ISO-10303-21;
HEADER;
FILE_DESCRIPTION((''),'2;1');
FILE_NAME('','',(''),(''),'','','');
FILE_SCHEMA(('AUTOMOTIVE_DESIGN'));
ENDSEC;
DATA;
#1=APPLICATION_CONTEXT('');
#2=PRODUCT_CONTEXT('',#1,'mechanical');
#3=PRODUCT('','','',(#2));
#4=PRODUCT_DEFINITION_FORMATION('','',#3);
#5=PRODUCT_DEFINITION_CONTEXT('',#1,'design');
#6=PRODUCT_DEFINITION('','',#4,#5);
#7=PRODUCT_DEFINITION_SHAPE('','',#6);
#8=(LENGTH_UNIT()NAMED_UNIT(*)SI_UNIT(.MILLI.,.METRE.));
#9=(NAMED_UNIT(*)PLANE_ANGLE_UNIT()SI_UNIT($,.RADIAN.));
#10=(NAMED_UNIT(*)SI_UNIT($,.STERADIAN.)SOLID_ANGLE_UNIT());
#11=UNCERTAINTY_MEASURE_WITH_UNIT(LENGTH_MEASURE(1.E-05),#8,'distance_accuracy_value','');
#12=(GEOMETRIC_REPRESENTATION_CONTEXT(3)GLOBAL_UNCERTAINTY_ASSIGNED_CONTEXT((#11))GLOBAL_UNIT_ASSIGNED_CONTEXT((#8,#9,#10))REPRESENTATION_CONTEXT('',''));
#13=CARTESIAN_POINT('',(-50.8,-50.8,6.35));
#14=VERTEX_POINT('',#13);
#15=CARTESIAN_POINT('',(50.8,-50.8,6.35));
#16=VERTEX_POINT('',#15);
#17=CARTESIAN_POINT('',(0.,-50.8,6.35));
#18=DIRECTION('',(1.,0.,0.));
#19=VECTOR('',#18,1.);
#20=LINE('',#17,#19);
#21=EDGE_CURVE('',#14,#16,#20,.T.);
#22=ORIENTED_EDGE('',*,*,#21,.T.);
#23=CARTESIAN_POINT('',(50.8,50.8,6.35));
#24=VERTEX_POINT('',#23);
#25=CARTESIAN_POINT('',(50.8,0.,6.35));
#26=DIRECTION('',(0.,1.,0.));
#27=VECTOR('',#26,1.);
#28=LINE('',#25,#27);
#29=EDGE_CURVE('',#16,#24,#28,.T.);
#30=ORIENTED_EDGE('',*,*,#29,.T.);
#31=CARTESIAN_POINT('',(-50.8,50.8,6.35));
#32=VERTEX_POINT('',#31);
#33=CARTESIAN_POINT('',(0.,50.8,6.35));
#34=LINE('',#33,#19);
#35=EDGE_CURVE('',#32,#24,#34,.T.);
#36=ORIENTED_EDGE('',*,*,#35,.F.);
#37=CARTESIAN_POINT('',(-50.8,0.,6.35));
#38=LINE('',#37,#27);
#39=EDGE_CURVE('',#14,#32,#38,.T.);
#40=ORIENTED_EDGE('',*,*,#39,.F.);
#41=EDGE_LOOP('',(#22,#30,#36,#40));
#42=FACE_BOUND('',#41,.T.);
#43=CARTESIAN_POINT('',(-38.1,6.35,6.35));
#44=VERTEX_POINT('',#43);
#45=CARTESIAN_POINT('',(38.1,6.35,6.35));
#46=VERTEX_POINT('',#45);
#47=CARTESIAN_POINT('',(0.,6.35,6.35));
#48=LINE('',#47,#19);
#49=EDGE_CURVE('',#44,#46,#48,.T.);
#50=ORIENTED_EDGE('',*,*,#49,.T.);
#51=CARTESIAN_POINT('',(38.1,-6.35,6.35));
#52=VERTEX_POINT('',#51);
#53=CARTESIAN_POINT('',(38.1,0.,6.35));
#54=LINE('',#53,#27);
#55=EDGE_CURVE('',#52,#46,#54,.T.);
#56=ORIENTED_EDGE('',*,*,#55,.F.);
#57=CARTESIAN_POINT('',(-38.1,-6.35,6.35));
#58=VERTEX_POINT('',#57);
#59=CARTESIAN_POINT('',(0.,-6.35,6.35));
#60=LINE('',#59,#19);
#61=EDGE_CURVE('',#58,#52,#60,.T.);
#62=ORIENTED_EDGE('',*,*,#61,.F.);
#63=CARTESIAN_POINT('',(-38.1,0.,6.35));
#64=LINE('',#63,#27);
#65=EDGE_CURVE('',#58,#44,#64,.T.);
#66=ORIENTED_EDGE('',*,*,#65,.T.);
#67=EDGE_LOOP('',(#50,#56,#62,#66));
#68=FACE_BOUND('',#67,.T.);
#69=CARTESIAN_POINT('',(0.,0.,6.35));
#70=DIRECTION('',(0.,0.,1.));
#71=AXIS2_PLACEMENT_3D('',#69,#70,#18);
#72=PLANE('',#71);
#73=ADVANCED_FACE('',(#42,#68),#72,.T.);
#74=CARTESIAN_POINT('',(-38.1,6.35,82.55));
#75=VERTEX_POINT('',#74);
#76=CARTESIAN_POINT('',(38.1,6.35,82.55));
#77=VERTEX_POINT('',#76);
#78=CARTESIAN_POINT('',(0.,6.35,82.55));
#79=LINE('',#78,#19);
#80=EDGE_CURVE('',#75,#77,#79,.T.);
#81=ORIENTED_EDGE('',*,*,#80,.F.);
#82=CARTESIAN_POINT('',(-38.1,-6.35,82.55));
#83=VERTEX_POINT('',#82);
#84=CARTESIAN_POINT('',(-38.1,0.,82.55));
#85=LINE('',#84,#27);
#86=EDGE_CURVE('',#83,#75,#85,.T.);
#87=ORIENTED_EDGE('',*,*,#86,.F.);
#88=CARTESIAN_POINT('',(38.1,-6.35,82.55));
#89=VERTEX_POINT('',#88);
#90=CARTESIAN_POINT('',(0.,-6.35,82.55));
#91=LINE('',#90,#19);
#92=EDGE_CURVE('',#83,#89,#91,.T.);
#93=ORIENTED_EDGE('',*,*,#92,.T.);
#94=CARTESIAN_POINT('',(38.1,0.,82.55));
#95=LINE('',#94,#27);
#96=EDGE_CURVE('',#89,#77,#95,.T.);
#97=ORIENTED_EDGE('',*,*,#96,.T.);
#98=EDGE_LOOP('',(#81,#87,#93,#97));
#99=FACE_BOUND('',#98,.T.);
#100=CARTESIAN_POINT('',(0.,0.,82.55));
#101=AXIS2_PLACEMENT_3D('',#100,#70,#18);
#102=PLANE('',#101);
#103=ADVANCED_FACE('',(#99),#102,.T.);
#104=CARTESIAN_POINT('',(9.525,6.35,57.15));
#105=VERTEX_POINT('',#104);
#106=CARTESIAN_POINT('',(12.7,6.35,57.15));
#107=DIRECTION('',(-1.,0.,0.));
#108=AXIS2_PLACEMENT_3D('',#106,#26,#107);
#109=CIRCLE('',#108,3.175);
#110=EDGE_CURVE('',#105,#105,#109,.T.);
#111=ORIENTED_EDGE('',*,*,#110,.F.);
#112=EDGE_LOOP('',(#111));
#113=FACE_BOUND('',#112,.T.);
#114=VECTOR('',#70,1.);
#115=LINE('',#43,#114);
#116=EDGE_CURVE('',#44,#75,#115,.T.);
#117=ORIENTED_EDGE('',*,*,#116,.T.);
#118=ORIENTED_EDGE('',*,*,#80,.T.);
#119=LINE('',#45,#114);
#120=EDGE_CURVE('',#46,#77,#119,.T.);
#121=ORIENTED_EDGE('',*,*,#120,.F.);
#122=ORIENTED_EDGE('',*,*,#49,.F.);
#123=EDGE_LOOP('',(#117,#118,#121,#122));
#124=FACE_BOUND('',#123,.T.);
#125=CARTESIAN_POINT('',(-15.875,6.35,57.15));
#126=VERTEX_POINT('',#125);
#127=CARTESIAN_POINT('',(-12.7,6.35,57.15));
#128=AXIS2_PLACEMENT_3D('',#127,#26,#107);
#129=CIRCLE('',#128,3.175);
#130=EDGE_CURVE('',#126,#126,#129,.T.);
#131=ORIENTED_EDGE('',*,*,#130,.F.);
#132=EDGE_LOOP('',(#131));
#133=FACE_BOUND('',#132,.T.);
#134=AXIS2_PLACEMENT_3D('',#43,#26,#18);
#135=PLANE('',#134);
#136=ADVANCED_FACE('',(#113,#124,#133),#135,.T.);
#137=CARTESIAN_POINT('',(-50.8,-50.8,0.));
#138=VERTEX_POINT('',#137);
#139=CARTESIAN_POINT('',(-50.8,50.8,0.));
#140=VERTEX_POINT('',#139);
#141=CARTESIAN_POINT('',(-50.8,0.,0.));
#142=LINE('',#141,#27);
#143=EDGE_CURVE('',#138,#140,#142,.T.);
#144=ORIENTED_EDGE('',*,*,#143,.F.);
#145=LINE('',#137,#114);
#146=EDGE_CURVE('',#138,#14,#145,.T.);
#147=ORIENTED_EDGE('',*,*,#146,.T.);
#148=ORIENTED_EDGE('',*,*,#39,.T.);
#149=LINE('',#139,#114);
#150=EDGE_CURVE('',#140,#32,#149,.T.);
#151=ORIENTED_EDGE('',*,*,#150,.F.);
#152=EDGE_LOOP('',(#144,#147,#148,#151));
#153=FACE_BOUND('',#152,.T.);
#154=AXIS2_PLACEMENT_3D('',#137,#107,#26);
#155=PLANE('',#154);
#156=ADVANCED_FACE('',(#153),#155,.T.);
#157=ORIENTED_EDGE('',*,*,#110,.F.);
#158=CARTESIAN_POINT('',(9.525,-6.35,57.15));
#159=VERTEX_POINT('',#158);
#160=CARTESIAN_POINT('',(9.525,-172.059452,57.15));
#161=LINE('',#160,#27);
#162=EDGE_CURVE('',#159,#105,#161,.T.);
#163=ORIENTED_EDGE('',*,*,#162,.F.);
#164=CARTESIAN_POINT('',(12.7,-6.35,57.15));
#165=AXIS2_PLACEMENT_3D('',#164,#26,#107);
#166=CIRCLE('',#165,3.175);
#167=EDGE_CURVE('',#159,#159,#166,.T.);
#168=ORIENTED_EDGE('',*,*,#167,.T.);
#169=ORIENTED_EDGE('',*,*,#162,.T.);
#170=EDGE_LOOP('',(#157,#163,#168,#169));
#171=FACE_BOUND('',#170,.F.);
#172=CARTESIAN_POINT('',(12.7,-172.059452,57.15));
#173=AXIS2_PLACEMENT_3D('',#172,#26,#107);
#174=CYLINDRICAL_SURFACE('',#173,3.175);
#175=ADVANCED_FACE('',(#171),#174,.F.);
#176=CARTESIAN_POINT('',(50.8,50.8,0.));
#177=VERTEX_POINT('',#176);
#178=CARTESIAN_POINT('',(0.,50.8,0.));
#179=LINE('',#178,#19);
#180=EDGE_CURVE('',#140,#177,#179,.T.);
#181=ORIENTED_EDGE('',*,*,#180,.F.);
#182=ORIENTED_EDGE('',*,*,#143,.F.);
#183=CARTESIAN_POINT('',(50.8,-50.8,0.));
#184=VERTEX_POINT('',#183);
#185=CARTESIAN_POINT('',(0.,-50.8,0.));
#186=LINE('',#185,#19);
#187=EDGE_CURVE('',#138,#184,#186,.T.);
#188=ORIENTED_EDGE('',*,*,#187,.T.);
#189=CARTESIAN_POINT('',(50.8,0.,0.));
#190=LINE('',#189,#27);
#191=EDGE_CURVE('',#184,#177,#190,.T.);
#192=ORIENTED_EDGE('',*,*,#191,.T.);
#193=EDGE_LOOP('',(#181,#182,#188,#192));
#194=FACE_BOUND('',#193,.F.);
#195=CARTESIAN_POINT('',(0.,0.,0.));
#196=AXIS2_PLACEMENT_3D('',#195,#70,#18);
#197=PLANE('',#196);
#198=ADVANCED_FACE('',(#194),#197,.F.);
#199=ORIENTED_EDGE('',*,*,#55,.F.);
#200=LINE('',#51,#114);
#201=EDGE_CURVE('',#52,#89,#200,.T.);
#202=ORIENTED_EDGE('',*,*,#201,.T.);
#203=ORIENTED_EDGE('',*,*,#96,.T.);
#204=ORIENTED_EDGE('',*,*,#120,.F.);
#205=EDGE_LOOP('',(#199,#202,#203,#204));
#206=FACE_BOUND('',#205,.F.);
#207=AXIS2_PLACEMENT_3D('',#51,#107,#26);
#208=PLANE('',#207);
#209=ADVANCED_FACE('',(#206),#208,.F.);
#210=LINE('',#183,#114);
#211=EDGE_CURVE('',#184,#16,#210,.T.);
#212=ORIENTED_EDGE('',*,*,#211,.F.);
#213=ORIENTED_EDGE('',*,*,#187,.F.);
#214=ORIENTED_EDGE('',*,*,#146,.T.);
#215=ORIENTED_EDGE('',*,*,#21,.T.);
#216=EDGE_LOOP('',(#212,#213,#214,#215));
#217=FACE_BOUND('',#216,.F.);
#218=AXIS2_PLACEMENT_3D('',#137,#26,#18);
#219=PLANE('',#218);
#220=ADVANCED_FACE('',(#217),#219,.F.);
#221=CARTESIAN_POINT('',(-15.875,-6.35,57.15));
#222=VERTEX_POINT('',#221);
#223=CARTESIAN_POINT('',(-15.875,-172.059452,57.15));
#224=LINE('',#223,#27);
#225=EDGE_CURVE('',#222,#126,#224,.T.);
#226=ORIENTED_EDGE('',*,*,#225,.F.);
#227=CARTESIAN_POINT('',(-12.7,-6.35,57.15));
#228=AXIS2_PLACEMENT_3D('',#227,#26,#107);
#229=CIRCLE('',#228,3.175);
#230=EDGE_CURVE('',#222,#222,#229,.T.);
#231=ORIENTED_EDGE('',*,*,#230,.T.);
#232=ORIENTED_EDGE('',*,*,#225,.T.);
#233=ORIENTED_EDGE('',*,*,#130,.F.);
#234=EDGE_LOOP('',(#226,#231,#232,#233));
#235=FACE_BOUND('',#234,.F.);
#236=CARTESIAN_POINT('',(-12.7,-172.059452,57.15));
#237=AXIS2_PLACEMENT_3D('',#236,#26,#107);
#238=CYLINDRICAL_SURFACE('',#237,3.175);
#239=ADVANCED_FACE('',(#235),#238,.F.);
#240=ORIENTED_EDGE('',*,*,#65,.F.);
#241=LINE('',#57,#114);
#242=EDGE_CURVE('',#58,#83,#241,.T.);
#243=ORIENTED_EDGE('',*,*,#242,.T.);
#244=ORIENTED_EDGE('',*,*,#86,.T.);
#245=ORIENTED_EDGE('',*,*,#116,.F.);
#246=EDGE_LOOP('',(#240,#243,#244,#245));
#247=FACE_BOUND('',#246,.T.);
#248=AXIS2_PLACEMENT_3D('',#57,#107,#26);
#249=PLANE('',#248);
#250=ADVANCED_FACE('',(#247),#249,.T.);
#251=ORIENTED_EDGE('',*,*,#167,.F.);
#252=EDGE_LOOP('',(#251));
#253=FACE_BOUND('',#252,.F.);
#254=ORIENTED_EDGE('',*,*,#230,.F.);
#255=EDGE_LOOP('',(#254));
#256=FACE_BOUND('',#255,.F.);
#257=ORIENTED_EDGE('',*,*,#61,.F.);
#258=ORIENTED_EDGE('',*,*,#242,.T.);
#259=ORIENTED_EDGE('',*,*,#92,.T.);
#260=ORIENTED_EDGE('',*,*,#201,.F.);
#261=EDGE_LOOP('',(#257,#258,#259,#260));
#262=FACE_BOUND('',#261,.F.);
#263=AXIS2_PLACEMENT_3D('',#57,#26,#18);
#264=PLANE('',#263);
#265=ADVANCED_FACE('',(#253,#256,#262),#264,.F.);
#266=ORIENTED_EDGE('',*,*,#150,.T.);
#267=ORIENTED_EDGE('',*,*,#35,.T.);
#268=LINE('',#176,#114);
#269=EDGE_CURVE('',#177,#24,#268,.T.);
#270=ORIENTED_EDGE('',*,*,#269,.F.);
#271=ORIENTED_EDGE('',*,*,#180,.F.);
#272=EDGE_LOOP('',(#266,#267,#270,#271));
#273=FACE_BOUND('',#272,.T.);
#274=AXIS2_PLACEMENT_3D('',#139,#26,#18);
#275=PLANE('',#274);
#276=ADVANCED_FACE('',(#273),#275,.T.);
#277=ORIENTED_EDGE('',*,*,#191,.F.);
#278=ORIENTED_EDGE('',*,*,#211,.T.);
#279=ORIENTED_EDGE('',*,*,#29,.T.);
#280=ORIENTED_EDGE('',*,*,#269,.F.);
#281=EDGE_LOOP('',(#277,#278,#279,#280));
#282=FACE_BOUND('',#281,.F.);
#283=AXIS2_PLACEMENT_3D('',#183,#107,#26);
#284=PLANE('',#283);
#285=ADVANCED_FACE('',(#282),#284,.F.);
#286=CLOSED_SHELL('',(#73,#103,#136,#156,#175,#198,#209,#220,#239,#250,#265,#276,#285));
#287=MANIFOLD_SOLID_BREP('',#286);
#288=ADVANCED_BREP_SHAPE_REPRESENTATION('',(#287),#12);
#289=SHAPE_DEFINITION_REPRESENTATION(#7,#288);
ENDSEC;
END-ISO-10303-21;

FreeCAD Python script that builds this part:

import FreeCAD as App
import Part
import Sketcher
Q = App.Units.Quantity


def add_polygon(sketch, points):
    """Adds a closed chain of lines whose ends are joined by coincident constraints."""
    first, n = sketch.GeometryCount, len(points)
    for a, b in zip(points, points[1:] + points[:1]):
        sketch.addGeometry(Part.LineSegment(App.Vector(*a, 0), App.Vector(*b, 0)), False)
    for i in range(n):
        sketch.addConstraint(Sketcher.Constraint("Coincident", first + i, 2, first + (i + 1) % n, 1))

doc = App.newDocument("Part")
params = doc.addObject("Spreadsheet::Sheet", "Params")
for row, (alias, value) in enumerate([
    ("sketch1_width", "4 in"),
    ("pad1_length", "0.25 in"),
    ("sketch2_width", "3 in"),
    ("sketch2_height", "0.5 in"),
    ("pad2_length", "3 in"),
    ("sketch3_diameter", "0.25 in"),
    ("hole_diameter", "0.25 in"),
], start=1):
    params.set(f"A{row}", alias)
    params.set(f"B{row}", "=" + value)
    params.setAlias(f"B{row}", alias)

body = doc.addObject("PartDesign::Body", "Body")

# Sketch on XY plane
sketch1 = doc.addObject("Sketcher::SketchObject", "Sketch")
body.addObject(sketch1)
sketch1.AttachmentSupport = (doc.XY_Plane, [""])
sketch1.MapMode = "FlatFace"
add_polygon(sketch1, [(-50.8, 50.8), (-50.8, -50.8), (50.8, -50.8), (50.8, 50.8)])  # lines 0-3
sketch1.addConstraint(Sketcher.Constraint("Vertical", 0))
sketch1.addConstraint(Sketcher.Constraint("Horizontal", 1))
sketch1.addConstraint(Sketcher.Constraint("Vertical", 2))
sketch1.addConstraint(Sketcher.Constraint("Horizontal", 3))
sketch1.addConstraint(Sketcher.Constraint("Symmetric", 0, 2, 2, 2, -1, 1))
sketch1.addConstraint(Sketcher.Constraint("Equal", 3, 0))
sketch1.addConstraint(Sketcher.Constraint("DistanceX", 1, 1, 1, 2, Q("4 in")))
sketch1.setExpression("Constraints[10]", "Params.sketch1_width")
pad1 = doc.addObject("PartDesign::Pad", "Pad")
body.addObject(pad1)
pad1.Profile = sketch1
pad1.setExpression("Length", "Params.pad1_length")

# Sketch on XY plane
sketch2 = doc.addObject("Sketcher::SketchObject", "Sketch001")
body.addObject(sketch2)
sketch2.AttachmentSupport = (doc.XY_Plane, [""])
sketch2.MapMode = "FlatFace"
sketch2.AttachmentOffset = App.Placement(App.Vector(0, 0, 0.25 * 25.4), App.Rotation())
add_polygon(sketch2, [(-38.1, 6.35), (-38.1, -6.35), (38.1, -6.35), (38.1, 6.35)])  # lines 0-3
sketch2.addConstraint(Sketcher.Constraint("Vertical", 0))
sketch2.addConstraint(Sketcher.Constraint("Horizontal", 1))
sketch2.addConstraint(Sketcher.Constraint("Vertical", 2))
sketch2.addConstraint(Sketcher.Constraint("Horizontal", 3))
sketch2.addConstraint(Sketcher.Constraint("Symmetric", 0, 2, 2, 2, -1, 1))
sketch2.addConstraint(Sketcher.Constraint("DistanceX", 1, 1, 1, 2, Q("3 in")))
sketch2.addConstraint(Sketcher.Constraint("DistanceY", 0, 2, 0, 1, Q("0.5 in")))
sketch2.setExpression("Constraints[9]", "Params.sketch2_width")
sketch2.setExpression("Constraints[10]", "Params.sketch2_height")
pad2 = doc.addObject("PartDesign::Pad", "Pad001")
body.addObject(pad2)
pad2.Profile = sketch2
pad2.setExpression("Length", "Params.pad2_length")

# Sketch on XZ plane
sketch3 = doc.addObject("Sketcher::SketchObject", "Sketch002")
body.addObject(sketch3)
sketch3.AttachmentSupport = (doc.XZ_Plane, [""])
sketch3.MapMode = "FlatFace"
sketch3.AttachmentOffset = App.Placement(App.Vector(0, 0, 0.25 * 25.4), App.Rotation())
sketch3.addGeometry(Part.Circle(App.Vector(-12.7, 57.15, 0), App.Vector(0, 0, 1), 3.175), False)
sketch3.addGeometry(Part.Circle(App.Vector(12.7, 57.15, 0), App.Vector(0, 0, 1), 3.175), False)
sketch3.addConstraint(Sketcher.Constraint("Equal", 0, 1))
sketch3.addConstraint(Sketcher.Constraint("Symmetric", 0, 3, 1, 3, -2))
sketch3.addConstraint(Sketcher.Constraint("Diameter", 0, Q("0.25 in")))
sketch3.addConstraint(Sketcher.Constraint("DistanceX", 0, 3, 1, 3, Q("1 in")))
sketch3.addConstraint(Sketcher.Constraint("DistanceY", -1, 1, 0, 3, Q("2.25 in")))
sketch3.setExpression("Constraints[2]", "Params.sketch3_diameter")
doc.recompute()
hole = doc.addObject("PartDesign::Hole", "Hole")
body.addObject(hole)
hole.Profile = sketch3
hole.ThreadType = "None"
hole.setExpression("Diameter", "Params.hole_diameter")
hole.DepthType = "ThroughAll"

doc.recompute()
